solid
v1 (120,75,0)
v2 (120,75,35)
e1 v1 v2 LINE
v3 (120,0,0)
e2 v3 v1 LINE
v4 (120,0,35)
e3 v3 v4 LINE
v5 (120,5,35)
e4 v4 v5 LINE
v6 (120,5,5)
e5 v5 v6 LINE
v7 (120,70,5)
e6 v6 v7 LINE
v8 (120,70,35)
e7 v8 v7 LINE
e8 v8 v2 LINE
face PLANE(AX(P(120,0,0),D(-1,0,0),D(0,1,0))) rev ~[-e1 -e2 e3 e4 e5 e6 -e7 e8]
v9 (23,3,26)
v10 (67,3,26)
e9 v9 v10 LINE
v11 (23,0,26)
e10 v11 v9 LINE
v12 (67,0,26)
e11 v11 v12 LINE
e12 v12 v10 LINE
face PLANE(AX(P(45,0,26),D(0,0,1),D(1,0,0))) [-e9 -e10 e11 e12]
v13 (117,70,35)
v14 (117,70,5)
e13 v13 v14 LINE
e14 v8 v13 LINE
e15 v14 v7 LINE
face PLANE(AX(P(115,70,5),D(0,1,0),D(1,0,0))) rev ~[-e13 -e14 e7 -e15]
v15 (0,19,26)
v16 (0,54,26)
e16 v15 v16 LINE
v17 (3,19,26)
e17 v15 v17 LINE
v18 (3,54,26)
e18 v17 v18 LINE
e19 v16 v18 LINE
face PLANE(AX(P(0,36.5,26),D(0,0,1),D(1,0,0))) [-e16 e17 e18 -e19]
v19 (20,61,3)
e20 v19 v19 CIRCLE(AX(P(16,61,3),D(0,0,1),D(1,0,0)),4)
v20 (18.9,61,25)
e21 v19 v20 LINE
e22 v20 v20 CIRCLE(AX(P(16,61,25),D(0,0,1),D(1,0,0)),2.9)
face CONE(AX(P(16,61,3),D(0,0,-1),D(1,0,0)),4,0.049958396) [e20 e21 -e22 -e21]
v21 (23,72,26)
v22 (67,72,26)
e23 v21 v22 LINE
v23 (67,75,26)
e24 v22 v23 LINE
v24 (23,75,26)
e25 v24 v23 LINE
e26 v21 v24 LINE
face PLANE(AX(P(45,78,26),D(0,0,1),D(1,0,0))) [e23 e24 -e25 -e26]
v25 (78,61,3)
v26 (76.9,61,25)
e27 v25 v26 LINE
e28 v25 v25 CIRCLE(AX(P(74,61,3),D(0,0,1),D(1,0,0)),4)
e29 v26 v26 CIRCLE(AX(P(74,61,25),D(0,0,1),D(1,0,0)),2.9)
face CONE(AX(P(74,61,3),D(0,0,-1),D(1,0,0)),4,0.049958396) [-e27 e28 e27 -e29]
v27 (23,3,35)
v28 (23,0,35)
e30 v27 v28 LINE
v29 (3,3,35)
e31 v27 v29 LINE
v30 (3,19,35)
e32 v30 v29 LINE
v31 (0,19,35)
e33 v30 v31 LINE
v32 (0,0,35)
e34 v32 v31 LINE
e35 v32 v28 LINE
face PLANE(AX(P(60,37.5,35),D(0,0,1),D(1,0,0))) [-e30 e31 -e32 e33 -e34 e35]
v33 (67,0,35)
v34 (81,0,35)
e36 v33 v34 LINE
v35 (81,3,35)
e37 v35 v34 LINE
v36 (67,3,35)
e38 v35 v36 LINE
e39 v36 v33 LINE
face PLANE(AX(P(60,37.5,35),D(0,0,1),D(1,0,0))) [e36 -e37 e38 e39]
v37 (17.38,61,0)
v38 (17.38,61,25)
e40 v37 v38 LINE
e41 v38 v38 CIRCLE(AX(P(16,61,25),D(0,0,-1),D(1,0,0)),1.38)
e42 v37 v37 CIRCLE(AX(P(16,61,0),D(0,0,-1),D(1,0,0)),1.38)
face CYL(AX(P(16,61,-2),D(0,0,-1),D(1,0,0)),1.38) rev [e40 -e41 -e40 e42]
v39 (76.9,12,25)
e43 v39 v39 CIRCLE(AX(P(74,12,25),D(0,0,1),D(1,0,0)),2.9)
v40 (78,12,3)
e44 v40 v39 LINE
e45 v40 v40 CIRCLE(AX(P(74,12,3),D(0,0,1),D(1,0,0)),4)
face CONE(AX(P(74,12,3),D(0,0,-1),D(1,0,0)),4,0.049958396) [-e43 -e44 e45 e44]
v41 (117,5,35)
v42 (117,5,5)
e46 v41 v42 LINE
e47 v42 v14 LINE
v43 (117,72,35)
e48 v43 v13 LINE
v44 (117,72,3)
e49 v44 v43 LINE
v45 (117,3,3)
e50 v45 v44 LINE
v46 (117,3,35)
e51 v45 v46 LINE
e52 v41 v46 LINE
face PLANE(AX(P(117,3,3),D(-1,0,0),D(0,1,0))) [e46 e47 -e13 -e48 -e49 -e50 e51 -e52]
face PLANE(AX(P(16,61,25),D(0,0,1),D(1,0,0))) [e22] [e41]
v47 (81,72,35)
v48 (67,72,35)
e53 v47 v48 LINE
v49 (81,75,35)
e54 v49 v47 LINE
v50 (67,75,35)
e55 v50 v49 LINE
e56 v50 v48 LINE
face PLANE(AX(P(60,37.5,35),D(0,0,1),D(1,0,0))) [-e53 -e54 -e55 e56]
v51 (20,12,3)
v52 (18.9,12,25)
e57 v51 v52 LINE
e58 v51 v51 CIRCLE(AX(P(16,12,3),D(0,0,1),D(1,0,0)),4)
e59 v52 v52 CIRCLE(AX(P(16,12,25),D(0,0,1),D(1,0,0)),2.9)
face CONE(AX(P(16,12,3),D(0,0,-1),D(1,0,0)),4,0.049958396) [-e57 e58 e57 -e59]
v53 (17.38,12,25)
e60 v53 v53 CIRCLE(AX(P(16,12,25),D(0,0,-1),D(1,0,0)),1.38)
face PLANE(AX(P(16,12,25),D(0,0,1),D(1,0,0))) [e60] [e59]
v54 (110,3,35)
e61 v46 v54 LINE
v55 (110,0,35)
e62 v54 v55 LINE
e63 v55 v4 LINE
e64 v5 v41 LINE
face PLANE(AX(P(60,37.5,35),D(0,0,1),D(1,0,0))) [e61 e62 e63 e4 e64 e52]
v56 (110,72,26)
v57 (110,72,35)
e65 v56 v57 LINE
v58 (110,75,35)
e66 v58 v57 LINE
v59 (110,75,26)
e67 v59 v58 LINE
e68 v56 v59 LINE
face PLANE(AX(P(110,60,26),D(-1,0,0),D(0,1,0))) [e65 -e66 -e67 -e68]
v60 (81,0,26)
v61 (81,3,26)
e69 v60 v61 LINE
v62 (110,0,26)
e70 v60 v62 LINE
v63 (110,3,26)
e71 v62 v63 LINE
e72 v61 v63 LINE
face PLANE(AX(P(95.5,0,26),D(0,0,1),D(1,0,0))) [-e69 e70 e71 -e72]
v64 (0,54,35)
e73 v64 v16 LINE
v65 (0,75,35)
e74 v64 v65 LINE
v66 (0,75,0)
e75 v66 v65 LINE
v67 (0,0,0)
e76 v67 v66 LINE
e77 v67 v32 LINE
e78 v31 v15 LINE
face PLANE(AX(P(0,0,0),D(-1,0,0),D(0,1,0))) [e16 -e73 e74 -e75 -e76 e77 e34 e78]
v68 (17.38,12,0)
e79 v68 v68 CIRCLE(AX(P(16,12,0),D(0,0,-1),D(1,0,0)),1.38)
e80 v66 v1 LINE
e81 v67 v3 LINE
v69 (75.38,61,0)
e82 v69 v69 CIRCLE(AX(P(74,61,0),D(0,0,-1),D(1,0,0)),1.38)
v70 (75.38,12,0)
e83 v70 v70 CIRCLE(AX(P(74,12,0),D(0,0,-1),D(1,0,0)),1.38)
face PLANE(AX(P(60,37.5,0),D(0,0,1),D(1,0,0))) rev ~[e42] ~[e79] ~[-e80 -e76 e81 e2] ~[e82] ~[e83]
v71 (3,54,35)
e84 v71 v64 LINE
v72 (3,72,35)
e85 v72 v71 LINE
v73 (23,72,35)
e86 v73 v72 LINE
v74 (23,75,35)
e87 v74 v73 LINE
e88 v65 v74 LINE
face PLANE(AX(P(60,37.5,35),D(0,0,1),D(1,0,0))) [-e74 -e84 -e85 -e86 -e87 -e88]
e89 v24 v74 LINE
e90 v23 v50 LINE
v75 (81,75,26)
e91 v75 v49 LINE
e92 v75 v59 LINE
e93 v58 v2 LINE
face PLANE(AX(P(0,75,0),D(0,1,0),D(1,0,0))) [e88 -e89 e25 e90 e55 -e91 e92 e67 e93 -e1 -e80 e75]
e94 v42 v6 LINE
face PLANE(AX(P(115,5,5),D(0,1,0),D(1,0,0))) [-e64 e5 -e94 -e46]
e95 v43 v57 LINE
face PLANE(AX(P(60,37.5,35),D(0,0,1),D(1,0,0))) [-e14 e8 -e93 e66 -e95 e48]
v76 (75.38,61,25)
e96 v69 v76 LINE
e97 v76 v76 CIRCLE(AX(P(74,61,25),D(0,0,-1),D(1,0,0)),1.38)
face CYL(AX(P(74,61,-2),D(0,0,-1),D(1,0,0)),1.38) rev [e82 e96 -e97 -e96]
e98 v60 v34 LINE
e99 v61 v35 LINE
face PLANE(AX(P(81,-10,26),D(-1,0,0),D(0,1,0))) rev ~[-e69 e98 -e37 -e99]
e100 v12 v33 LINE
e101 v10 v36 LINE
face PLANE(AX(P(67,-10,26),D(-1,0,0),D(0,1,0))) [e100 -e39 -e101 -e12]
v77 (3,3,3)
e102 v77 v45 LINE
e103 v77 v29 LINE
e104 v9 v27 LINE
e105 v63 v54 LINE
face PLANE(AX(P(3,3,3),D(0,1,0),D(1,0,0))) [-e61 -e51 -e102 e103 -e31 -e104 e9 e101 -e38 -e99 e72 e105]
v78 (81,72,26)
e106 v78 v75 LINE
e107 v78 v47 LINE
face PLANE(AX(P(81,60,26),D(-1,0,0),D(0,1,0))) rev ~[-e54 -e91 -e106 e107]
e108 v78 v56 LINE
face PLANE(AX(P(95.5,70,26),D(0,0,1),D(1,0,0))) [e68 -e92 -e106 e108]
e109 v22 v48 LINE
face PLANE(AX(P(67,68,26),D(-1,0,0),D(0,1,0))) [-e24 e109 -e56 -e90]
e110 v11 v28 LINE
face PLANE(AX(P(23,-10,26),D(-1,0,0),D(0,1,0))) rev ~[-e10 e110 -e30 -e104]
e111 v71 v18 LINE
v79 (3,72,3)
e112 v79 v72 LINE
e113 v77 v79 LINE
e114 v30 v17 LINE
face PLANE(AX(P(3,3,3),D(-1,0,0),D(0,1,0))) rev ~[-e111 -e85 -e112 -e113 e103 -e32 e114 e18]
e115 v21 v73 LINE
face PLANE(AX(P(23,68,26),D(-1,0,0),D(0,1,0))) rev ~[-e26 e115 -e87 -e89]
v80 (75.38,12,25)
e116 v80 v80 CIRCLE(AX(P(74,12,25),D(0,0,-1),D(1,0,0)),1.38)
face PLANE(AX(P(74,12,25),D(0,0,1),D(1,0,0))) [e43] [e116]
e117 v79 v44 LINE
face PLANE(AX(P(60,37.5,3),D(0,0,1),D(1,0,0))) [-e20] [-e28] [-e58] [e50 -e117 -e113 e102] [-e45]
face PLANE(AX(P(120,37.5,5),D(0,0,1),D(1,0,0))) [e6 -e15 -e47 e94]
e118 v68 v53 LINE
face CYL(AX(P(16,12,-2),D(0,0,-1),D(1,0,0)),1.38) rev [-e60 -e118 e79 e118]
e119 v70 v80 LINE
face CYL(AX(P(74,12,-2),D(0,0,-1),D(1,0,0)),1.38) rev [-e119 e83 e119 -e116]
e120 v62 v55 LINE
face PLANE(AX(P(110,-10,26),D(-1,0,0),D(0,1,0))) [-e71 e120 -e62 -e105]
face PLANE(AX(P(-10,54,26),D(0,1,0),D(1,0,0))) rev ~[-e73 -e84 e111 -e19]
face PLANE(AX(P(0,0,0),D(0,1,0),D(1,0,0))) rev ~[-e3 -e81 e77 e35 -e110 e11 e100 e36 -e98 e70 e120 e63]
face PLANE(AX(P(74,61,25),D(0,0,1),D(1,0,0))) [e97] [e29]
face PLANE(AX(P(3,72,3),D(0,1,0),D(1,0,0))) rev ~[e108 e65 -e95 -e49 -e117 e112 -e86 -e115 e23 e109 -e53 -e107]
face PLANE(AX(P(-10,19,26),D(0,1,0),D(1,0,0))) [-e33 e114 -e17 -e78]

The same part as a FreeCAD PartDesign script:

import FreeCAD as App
import Part
import Sketcher
Q = App.Units.Quantity


def add_polygon(sketch, points):
    """Adds a closed chain of lines whose ends are joined by coincident constraints."""
    first, n = sketch.GeometryCount, len(points)
    for a, b in zip(points, points[1:] + points[:1]):
        sketch.addGeometry(Part.LineSegment(App.Vector(*a, 0), App.Vector(*b, 0)), False)
    for i in range(n):
        sketch.addConstraint(Sketcher.Constraint("Coincident", first + i, 2, first + (i + 1) % n, 1))

doc = App.newDocument("Part")
params = doc.addObject("Spreadsheet::Sheet", "Params")
for row, (alias, value) in enumerate([
    ("sketch1_diameter", "2.76 mm"),
    ("pad1_length", "30 mm"),
    ("sketch2_diameter", "2.76 mm"),
    ("pad2_length", "30 mm"),
    ("sketch3_diameter", "2.76 mm"),
    ("pad3_length", "30 mm"),
    ("sketch4_diameter", "2.76 mm"),
    ("pad4_length", "30 mm"),
    ("sketch5_width", "4 mm"),
    ("sketch5_height", "22 mm"),
    ("sketch5_width2", "2.9 mm"),
    ("revolution_angle", "360 deg"),
    ("sketch6_width", "4 mm"),
    ("sketch6_height", "22 mm"),
    ("sketch6_width2", "2.9 mm"),
    ("revolution2_angle", "360 deg"),
    ("sketch7_width", "4 mm"),
    ("sketch7_height", "22 mm"),
    ("sketch7_width2", "2.9 mm"),
    ("revolution3_angle", "360 deg"),
    ("sketch8_width", "4 mm"),
    ("sketch8_height", "22 mm"),
    ("sketch8_width2", "2.9 mm"),
    ("revolution4_angle", "360 deg"),
    ("sketch9_width", "10 mm"),
    ("sketch9_height", "65 mm"),
    ("pad5_length", "35 mm"),
    ("sketch10_width", "20 mm"),
    ("sketch10_height", "35 mm"),
    ("pad6_length", "10 mm"),
    ("sketch11_width", "29 mm"),
    ("sketch11_height", "20 mm"),
    ("pad7_length", "10 mm"),
    ("sketch12_width", "29 mm"),
    ("sketch12_height", "20 mm"),
    ("pad8_length", "10 mm"),
    ("sketch13_width", "44 mm"),
    ("sketch13_height", "20 mm"),
    ("pad9_length", "10 mm"),
    ("sketch14_width", "44 mm"),
    ("sketch14_height", "20 mm"),
    ("pad10_length", "10 mm"),
    ("sketch15_width", "114 mm"),
    ("sketch15_height", "69 mm"),
    ("pad11_length", "35 mm"),
    ("sketch16_width", "120 mm"),
    ("sketch16_height", "75 mm"),
    ("pad12_length", "35 mm"),
], start=1):
    params.set(f"A{row}", alias)
    params.set(f"B{row}", "=" + value)
    params.setAlias(f"B{row}", alias)

body = doc.addObject("PartDesign::Body", "Body")

# Sketch on XY plane
sketch1 = body.newObject("Sketcher::SketchObject", "Sketch")
sketch1.AttachmentSupport = (doc.getObject("XY_Plane"), [""])
sketch1.MapMode = "FlatFace"
sketch1.AttachmentOffset = App.Placement(App.Vector(0, 0, -2), App.Rotation())
sketch1.addGeometry(Part.Circle(App.Vector(74, 61, 0), App.Vector(0, 0, 1), 1.4), False)
sketch1.addConstraint(Sketcher.Constraint("Diameter", 0, Q("2.76 mm")))
sketch1.addConstraint(Sketcher.Constraint("DistanceX", -1, 1, 0, 3, Q("74 mm")))
sketch1.addConstraint(Sketcher.Constraint("DistanceY", -1, 1, 0, 3, Q("61 mm")))
sketch1.setExpression("Constraints[0]", "Params.sketch1_diameter")
pad1 = body.newObject("PartDesign::Pad", "Pad")
pad1.Profile = sketch1
pad1.setExpression("Length", "Params.pad1_length")
body2 = doc.addObject("PartDesign::Body", "Body001")

# Sketch on XY plane
sketch2 = body2.newObject("Sketcher::SketchObject", "Sketch001")
sketch2.AttachmentSupport = (doc.getObject("XY_Plane001"), [""])
sketch2.MapMode = "FlatFace"
sketch2.AttachmentOffset = App.Placement(App.Vector(0, 0, -2), App.Rotation())
sketch2.addGeometry(Part.Circle(App.Vector(16, 61, 0), App.Vector(0, 0, 1), 1.4), False)
sketch2.addConstraint(Sketcher.Constraint("Diameter", 0, Q("2.76 mm")))
sketch2.addConstraint(Sketcher.Constraint("DistanceX", -1, 1, 0, 3, Q("16 mm")))
sketch2.addConstraint(Sketcher.Constraint("DistanceY", -1, 1, 0, 3, Q("61 mm")))
sketch2.setExpression("Constraints[0]", "Params.sketch2_diameter")
pad2 = body2.newObject("PartDesign::Pad", "Pad001")
pad2.Profile = sketch2
pad2.setExpression("Length", "Params.pad2_length")
body3 = doc.addObject("PartDesign::Body", "Body002")

# Sketch on XY plane
sketch3 = body3.newObject("Sketcher::SketchObject", "Sketch002")
sketch3.AttachmentSupport = (doc.getObject("XY_Plane002"), [""])
sketch3.MapMode = "FlatFace"
sketch3.AttachmentOffset = App.Placement(App.Vector(0, 0, -2), App.Rotation())
sketch3.addGeometry(Part.Circle(App.Vector(16, 12, 0), App.Vector(0, 0, 1), 1.4), False)
sketch3.addConstraint(Sketcher.Constraint("Diameter", 0, Q("2.76 mm")))
sketch3.addConstraint(Sketcher.Constraint("DistanceX", -1, 1, 0, 3, Q("16 mm")))
sketch3.addConstraint(Sketcher.Constraint("DistanceY", -1, 1, 0, 3, Q("12 mm")))
sketch3.setExpression("Constraints[0]", "Params.sketch3_diameter")
pad3 = body3.newObject("PartDesign::Pad", "Pad002")
pad3.Profile = sketch3
pad3.setExpression("Length", "Params.pad3_length")
body4 = doc.addObject("PartDesign::Body", "Body003")
body4.AllowCompound = True

# Sketch on XY plane
sketch4 = body4.newObject("Sketcher::SketchObject", "Sketch003")
sketch4.AttachmentSupport = (doc.getObject("XY_Plane003"), [""])
sketch4.MapMode = "FlatFace"
sketch4.AttachmentOffset = App.Placement(App.Vector(0, 0, -2), App.Rotation())
sketch4.addGeometry(Part.Circle(App.Vector(74, 12, 0), App.Vector(0, 0, 1), 1.4), False)
sketch4.addConstraint(Sketcher.Constraint("Diameter", 0, Q("2.76 mm")))
sketch4.addConstraint(Sketcher.Constraint("DistanceX", -1, 1, 0, 3, Q("74 mm")))
sketch4.addConstraint(Sketcher.Constraint("DistanceY", -1, 1, 0, 3, Q("12 mm")))
sketch4.setExpression("Constraints[0]", "Params.sketch4_diameter")
pad4 = body4.newObject("PartDesign::Pad", "Pad003")
pad4.Profile = sketch4
pad4.setExpression("Length", "Params.pad4_length")
doc.recompute()

boolean = body4.newObject("PartDesign::Boolean", "Boolean")
boolean.Type = "Fuse"
boolean.addObjects([body])
doc.recompute()

boolean2 = body4.newObject("PartDesign::Boolean", "Boolean001")
boolean2.Type = "Fuse"
boolean2.addObjects([body2])
doc.recompute()

boolean3 = body4.newObject("PartDesign::Boolean", "Boolean002")
boolean3.Type = "Fuse"
boolean3.addObjects([body3])
body5 = doc.addObject("PartDesign::Body", "Body004")

# Sketch on XZ plane
sketch5 = body5.newObject("Sketcher::SketchObject", "Sketch004")
sketch5.AttachmentSupport = (doc.getObject("XZ_Plane004"), [""])
sketch5.MapMode = "FlatFace"
sketch5.AttachmentOffset = App.Placement(App.Vector(0, 0, -61), App.Rotation())
add_polygon(sketch5, [(16, 3), (20, 3), (18.9, 25), (16, 25)])  # lines 0-3
sketch5.addGeometry(Part.LineSegment(App.Vector(16, 3, 0), App.Vector(16, 25, 0)), True)  # axis
sketch5.addConstraint(Sketcher.Constraint("Horizontal", 0))
sketch5.addConstraint(Sketcher.Constraint("Horizontal", 2))
sketch5.addConstraint(Sketcher.Constraint("Vertical", 3))
sketch5.addConstraint(Sketcher.Constraint("Vertical", 4))
sketch5.addConstraint(Sketcher.Constraint("Coincident", 4, 1, 3, 2))
sketch5.addConstraint(Sketcher.Constraint("Horizontal", 1, 2, 4, 2))
sketch5.addConstraint(Sketcher.Constraint("DistanceX", 0, 1, 0, 2, Q("4 mm")))
sketch5.addConstraint(Sketcher.Constraint("DistanceY", 3, 2, 3, 1, Q("22 mm")))
sketch5.addConstraint(Sketcher.Constraint("DistanceX", 2, 2, 2, 1, Q("2.9 mm")))
sketch5.addConstraint(Sketcher.Constraint("DistanceX", -1, 1, 0, 2, Q("20 mm")))
sketch5.addConstraint(Sketcher.Constraint("DistanceY", -1, 1, 0, 2, Q("3 mm")))
sketch5.setExpression("Constraints[10]", "Params.sketch5_width")
sketch5.setExpression("Constraints[11]", "Params.sketch5_height")
sketch5.setExpression("Constraints[12]", "Params.sketch5_width2")
revolution = body5.newObject("PartDesign::Revolution", "Revolution")
revolution.Profile = sketch5
revolution.ReferenceAxis = (sketch5, ["Axis0"])
revolution.setExpression("Angle", "Params.revolution_angle")
body6 = doc.addObject("PartDesign::Body", "Body005")

# Sketch on XZ plane
sketch6 = body6.newObject("Sketcher::SketchObject", "Sketch005")
sketch6.AttachmentSupport = (doc.getObject("XZ_Plane005"), [""])
sketch6.MapMode = "FlatFace"
sketch6.AttachmentOffset = App.Placement(App.Vector(0, 0, -12), App.Rotation())
add_polygon(sketch6, [(16, 3), (20, 3), (18.9, 25), (16, 25)])  # lines 0-3
sketch6.addGeometry(Part.LineSegment(App.Vector(16, 3, 0), App.Vector(16, 25, 0)), True)  # axis
sketch6.addConstraint(Sketcher.Constraint("Horizontal", 0))
sketch6.addConstraint(Sketcher.Constraint("Horizontal", 2))
sketch6.addConstraint(Sketcher.Constraint("Vertical", 3))
sketch6.addConstraint(Sketcher.Constraint("Vertical", 4))
sketch6.addConstraint(Sketcher.Constraint("Coincident", 4, 1, 3, 2))
sketch6.addConstraint(Sketcher.Constraint("Horizontal", 1, 2, 4, 2))
sketch6.addConstraint(Sketcher.Constraint("DistanceX", 0, 1, 0, 2, Q("4 mm")))
sketch6.addConstraint(Sketcher.Constraint("DistanceY", 3, 2, 3, 1, Q("22 mm")))
sketch6.addConstraint(Sketcher.Constraint("DistanceX", 2, 2, 2, 1, Q("2.9 mm")))
sketch6.addConstraint(Sketcher.Constraint("DistanceX", -1, 1, 0, 2, Q("20 mm")))
sketch6.addConstraint(Sketcher.Constraint("DistanceY", -1, 1, 0, 2, Q("3 mm")))
sketch6.setExpression("Constraints[10]", "Params.sketch6_width")
sketch6.setExpression("Constraints[11]", "Params.sketch6_height")
sketch6.setExpression("Constraints[12]", "Params.sketch6_width2")
revolution2 = body6.newObject("PartDesign::Revolution", "Revolution001")
revolution2.Profile = sketch6
revolution2.ReferenceAxis = (sketch6, ["Axis0"])
revolution2.setExpression("Angle", "Params.revolution2_angle")
body7 = doc.addObject("PartDesign::Body", "Body006")

# Sketch on XZ plane
sketch7 = body7.newObject("Sketcher::SketchObject", "Sketch006")
sketch7.AttachmentSupport = (doc.getObject("XZ_Plane006"), [""])
sketch7.MapMode = "FlatFace"
sketch7.AttachmentOffset = App.Placement(App.Vector(0, 0, -61), App.Rotation())
add_polygon(sketch7, [(74, 3), (78, 3), (76.9, 25), (74, 25)])  # lines 0-3
sketch7.addGeometry(Part.LineSegment(App.Vector(74, 3, 0), App.Vector(74, 25, 0)), True)  # axis
sketch7.addConstraint(Sketcher.Constraint("Horizontal", 0))
sketch7.addConstraint(Sketcher.Constraint("Horizontal", 2))
sketch7.addConstraint(Sketcher.Constraint("Vertical", 3))
sketch7.addConstraint(Sketcher.Constraint("Vertical", 4))
sketch7.addConstraint(Sketcher.Constraint("Coincident", 4, 1, 3, 2))
sketch7.addConstraint(Sketcher.Constraint("Horizontal", 1, 2, 4, 2))
sketch7.addConstraint(Sketcher.Constraint("DistanceX", 0, 1, 0, 2, Q("4 mm")))
sketch7.addConstraint(Sketcher.Constraint("DistanceY", 3, 2, 3, 1, Q("22 mm")))
sketch7.addConstraint(Sketcher.Constraint("DistanceX", 2, 2, 2, 1, Q("2.9 mm")))
sketch7.addConstraint(Sketcher.Constraint("DistanceX", -1, 1, 0, 2, Q("78 mm")))
sketch7.addConstraint(Sketcher.Constraint("DistanceY", -1, 1, 0, 2, Q("3 mm")))
sketch7.setExpression("Constraints[10]", "Params.sketch7_width")
sketch7.setExpression("Constraints[11]", "Params.sketch7_height")
sketch7.setExpression("Constraints[12]", "Params.sketch7_width2")
revolution3 = body7.newObject("PartDesign::Revolution", "Revolution002")
revolution3.Profile = sketch7
revolution3.ReferenceAxis = (sketch7, ["Axis0"])
revolution3.setExpression("Angle", "Params.revolution3_angle")
body8 = doc.addObject("PartDesign::Body", "Body007")
body8.AllowCompound = True

# Sketch on XZ plane
sketch8 = body8.newObject("Sketcher::SketchObject", "Sketch007")
sketch8.AttachmentSupport = (doc.getObject("XZ_Plane007"), [""])
sketch8.MapMode = "FlatFace"
sketch8.AttachmentOffset = App.Placement(App.Vector(0, 0, -12), App.Rotation())
add_polygon(sketch8, [(74, 3), (78, 3), (76.9, 25), (74, 25)])  # lines 0-3
sketch8.addGeometry(Part.LineSegment(App.Vector(74, 3, 0), App.Vector(74, 25, 0)), True)  # axis
sketch8.addConstraint(Sketcher.Constraint("Horizontal", 0))
sketch8.addConstraint(Sketcher.Constraint("Horizontal", 2))
sketch8.addConstraint(Sketcher.Constraint("Vertical", 3))
sketch8.addConstraint(Sketcher.Constraint("Vertical", 4))
sketch8.addConstraint(Sketcher.Constraint("Coincident", 4, 1, 3, 2))
sketch8.addConstraint(Sketcher.Constraint("Horizontal", 1, 2, 4, 2))
sketch8.addConstraint(Sketcher.Constraint("DistanceX", 0, 1, 0, 2, Q("4 mm")))
sketch8.addConstraint(Sketcher.Constraint("DistanceY", 3, 2, 3, 1, Q("22 mm")))
sketch8.addConstraint(Sketcher.Constraint("DistanceX", 2, 2, 2, 1, Q("2.9 mm")))
sketch8.addConstraint(Sketcher.Constraint("DistanceX", -1, 1, 0, 2, Q("78 mm")))
sketch8.addConstraint(Sketcher.Constraint("DistanceY", -1, 1, 0, 2, Q("3 mm")))
sketch8.setExpression("Constraints[10]", "Params.sketch8_width")
sketch8.setExpression("Constraints[11]", "Params.sketch8_height")
sketch8.setExpression("Constraints[12]", "Params.sketch8_width2")
revolution4 = body8.newObject("PartDesign::Revolution", "Revolution003")
revolution4.Profile = sketch8
revolution4.ReferenceAxis = (sketch8, ["Axis0"])
revolution4.setExpression("Angle", "Params.revolution4_angle")
doc.recompute()

boolean4 = body8.newObject("PartDesign::Boolean", "Boolean003")
boolean4.Type = "Fuse"
boolean4.addObjects([body5])
doc.recompute()

boolean5 = body8.newObject("PartDesign::Boolean", "Boolean004")
boolean5.Type = "Fuse"
boolean5.addObjects([body6])
doc.recompute()

boolean6 = body8.newObject("PartDesign::Boolean", "Boolean005")
boolean6.Type = "Fuse"
boolean6.addObjects([body7])
body9 = doc.addObject("PartDesign::Body", "Body008")

# Sketch on XY plane
sketch9 = body9.newObject("Sketcher::SketchObject", "Sketch008")
sketch9.AttachmentSupport = (doc.getObject("XY_Plane008"), [""])
sketch9.MapMode = "FlatFace"
sketch9.AttachmentOffset = App.Placement(App.Vector(0, 0, 5), App.Rotation())
add_polygon(sketch9, [(115, 70), (115, 5), (125, 5), (125, 70)])  # lines 0-3
sketch9.addConstraint(Sketcher.Constraint("Vertical", 0))
sketch9.addConstraint(Sketcher.Constraint("Horizontal", 1))
sketch9.addConstraint(Sketcher.Constraint("Vertical", 2))
sketch9.addConstraint(Sketcher.Constraint("Horizontal", 3))
sketch9.addConstraint(Sketcher.Constraint("DistanceX", 1, 1, 1, 2, Q("10 mm")))
sketch9.addConstraint(Sketcher.Constraint("DistanceY", 0, 2, 0, 1, Q("65 mm")))
sketch9.addConstraint(Sketcher.Constraint("DistanceX", -1, 1, 0, 2, Q("115 mm")))
sketch9.addConstraint(Sketcher.Constraint("DistanceY", -1, 1, 0, 2, Q("5 mm")))
sketch9.setExpression("Constraints[8]", "Params.sketch9_width")
sketch9.setExpression("Constraints[9]", "Params.sketch9_height")
pad5 = body9.newObject("PartDesign::Pad", "Pad004")
pad5.Profile = sketch9
pad5.setExpression("Length", "Params.pad5_length")
body10 = doc.addObject("PartDesign::Body", "Body009")

# Sketch on XY plane
sketch10 = body10.newObject("Sketcher::SketchObject", "Sketch009")
sketch10.AttachmentSupport = (doc.getObject("XY_Plane009"), [""])
sketch10.MapMode = "FlatFace"
sketch10.AttachmentOffset = App.Placement(App.Vector(0, 0, 26), App.Rotation())
add_polygon(sketch10, [(-10, 54), (-10, 19), (10, 19), (10, 54)])  # lines 0-3
sketch10.addConstraint(Sketcher.Constraint("Vertical", 0))
sketch10.addConstraint(Sketcher.Constraint("Horizontal", 1))
sketch10.addConstraint(Sketcher.Constraint("Vertical", 2))
sketch10.addConstraint(Sketcher.Constraint("Horizontal", 3))
sketch10.addConstraint(Sketcher.Constraint("DistanceX", 1, 1, 1, 2, Q("20 mm")))
sketch10.addConstraint(Sketcher.Constraint("DistanceY", 0, 2, 0, 1, Q("35 mm")))
sketch10.addConstraint(Sketcher.Constraint("DistanceX", 0, 2, -1, 1, Q("10 mm")))
sketch10.addConstraint(Sketcher.Constraint("DistanceY", -1, 1, 0, 2, Q("19 mm")))
sketch10.setExpression("Constraints[8]", "Params.sketch10_width")
sketch10.setExpression("Constraints[9]", "Params.sketch10_height")
pad6 = body10.newObject("PartDesign::Pad", "Pad005")
pad6.Profile = sketch10
pad6.setExpression("Length", "Params.pad6_length")
body11 = doc.addObject("PartDesign::Body", "Body010")

# Sketch on XY plane
sketch11 = body11.newObject("Sketcher::SketchObject", "Sketch010")
sketch11.AttachmentSupport = (doc.getObject("XY_Plane010"), [""])
sketch11.MapMode = "FlatFace"
sketch11.AttachmentOffset = App.Placement(App.Vector(0, 0, 26), App.Rotation())
add_polygon(sketch11, [(81, 80), (81, 60), (110, 60), (110, 80)])  # lines 0-3
sketch11.addConstraint(Sketcher.Constraint("Vertical", 0))
sketch11.addConstraint(Sketcher.Constraint("Horizontal", 1))
sketch11.addConstraint(Sketcher.Constraint("Vertical", 2))
sketch11.addConstraint(Sketcher.Constraint("Horizontal", 3))
sketch11.addConstraint(Sketcher.Constraint("DistanceX", 1, 1, 1, 2, Q("29 mm")))
sketch11.addConstraint(Sketcher.Constraint("DistanceY", 0, 2, 0, 1, Q("20 mm")))
sketch11.addConstraint(Sketcher.Constraint("DistanceX", -1, 1, 0, 2, Q("81 mm")))
sketch11.addConstraint(Sketcher.Constraint("DistanceY", -1, 1, 0, 2, Q("60 mm")))
sketch11.setExpression("Constraints[8]", "Params.sketch11_width")
sketch11.setExpression("Constraints[9]", "Params.sketch11_height")
pad7 = body11.newObject("PartDesign::Pad", "Pad006")
pad7.Profile = sketch11
pad7.setExpression("Length", "Params.pad7_length")
body12 = doc.addObject("PartDesign::Body", "Body011")

# Sketch on XY plane
sketch12 = body12.newObject("Sketcher::SketchObject", "Sketch011")
sketch12.AttachmentSupport = (doc.getObject("XY_Plane011"), [""])
sketch12.MapMode = "FlatFace"
sketch12.AttachmentOffset = App.Placement(App.Vector(0, 0, 26), App.Rotation())
add_polygon(sketch12, [(81, 10), (81, -10), (110, -10), (110, 10)])  # lines 0-3
sketch12.addConstraint(Sketcher.Constraint("Vertical", 0))
sketch12.addConstraint(Sketcher.Constraint("Horizontal", 1))
sketch12.addConstraint(Sketcher.Constraint("Vertical", 2))
sketch12.addConstraint(Sketcher.Constraint("Horizontal", 3))
sketch12.addConstraint(Sketcher.Constraint("DistanceX", 1, 1, 1, 2, Q("29 mm")))
sketch12.addConstraint(Sketcher.Constraint("DistanceY", 0, 2, 0, 1, Q("20 mm")))
sketch12.addConstraint(Sketcher.Constraint("DistanceX", -1, 1, 0, 2, Q("81 mm")))
sketch12.addConstraint(Sketcher.Constraint("DistanceY", 0, 2, -1, 1, Q("10 mm")))
sketch12.setExpression("Constraints[8]", "Params.sketch12_width")
sketch12.setExpression("Constraints[9]", "Params.sketch12_height")
pad8 = body12.newObject("PartDesign::Pad", "Pad007")
pad8.Profile = sketch12
pad8.setExpression("Length", "Params.pad8_length")
body13 = doc.addObject("PartDesign::Body", "Body012")

# Sketch on XY plane
sketch13 = body13.newObject("Sketcher::SketchObject", "Sketch012")
sketch13.AttachmentSupport = (doc.getObject("XY_Plane012"), [""])
sketch13.MapMode = "FlatFace"
sketch13.AttachmentOffset = App.Placement(App.Vector(0, 0, 26), App.Rotation())
add_polygon(sketch13, [(23, 88), (23, 68), (67, 68), (67, 88)])  # lines 0-3
sketch13.addConstraint(Sketcher.Constraint("Vertical", 0))
sketch13.addConstraint(Sketcher.Constraint("Horizontal", 1))
sketch13.addConstraint(Sketcher.Constraint("Vertical", 2))
sketch13.addConstraint(Sketcher.Constraint("Horizontal", 3))
sketch13.addConstraint(Sketcher.Constraint("DistanceX", 1, 1, 1, 2, Q("44 mm")))
sketch13.addConstraint(Sketcher.Constraint("DistanceY", 0, 2, 0, 1, Q("20 mm")))
sketch13.addConstraint(Sketcher.Constraint("DistanceX", -1, 1, 0, 2, Q("23 mm")))
sketch13.addConstraint(Sketcher.Constraint("DistanceY", -1, 1, 0, 2, Q("68 mm")))
sketch13.setExpression("Constraints[8]", "Params.sketch13_width")
sketch13.setExpression("Constraints[9]", "Params.sketch13_height")
pad9 = body13.newObject("PartDesign::Pad", "Pad008")
pad9.Profile = sketch13
pad9.setExpression("Length", "Params.pad9_length")
body14 = doc.addObject("PartDesign::Body", "Body013")
body14.AllowCompound = True

# Sketch on XY plane
sketch14 = body14.newObject("Sketcher::SketchObject", "Sketch013")
sketch14.AttachmentSupport = (doc.getObject("XY_Plane013"), [""])
sketch14.MapMode = "FlatFace"
sketch14.AttachmentOffset = App.Placement(App.Vector(0, 0, 26), App.Rotation())
add_polygon(sketch14, [(23, 10), (23, -10), (67, -10), (67, 10)])  # lines 0-3
sketch14.addConstraint(Sketcher.Constraint("Vertical", 0))
sketch14.addConstraint(Sketcher.Constraint("Horizontal", 1))
sketch14.addConstraint(Sketcher.Constraint("Vertical", 2))
sketch14.addConstraint(Sketcher.Constraint("Horizontal", 3))
sketch14.addConstraint(Sketcher.Constraint("DistanceX", 1, 1, 1, 2, Q("44 mm")))
sketch14.addConstraint(Sketcher.Constraint("DistanceY", 0, 2, 0, 1, Q("20 mm")))
sketch14.addConstraint(Sketcher.Constraint("DistanceX", -1, 1, 0, 2, Q("23 mm")))
sketch14.addConstraint(Sketcher.Constraint("DistanceY", 0, 2, -1, 1, Q("10 mm")))
sketch14.setExpression("Constraints[8]", "Params.sketch14_width")
sketch14.setExpression("Constraints[9]", "Params.sketch14_height")
pad10 = body14.newObject("PartDesign::Pad", "Pad009")
pad10.Profile = sketch14
pad10.setExpression("Length", "Params.pad10_length")
doc.recompute()

boolean7 = body14.newObject("PartDesign::Boolean", "Boolean006")
boolean7.Type = "Fuse"
boolean7.addObjects([body10])
doc.recompute()

boolean8 = body14.newObject("PartDesign::Boolean", "Boolean007")
boolean8.Type = "Fuse"
boolean8.addObjects([body11])
doc.recompute()

boolean9 = body14.newObject("PartDesign::Boolean", "Boolean008")
boolean9.Type = "Fuse"
boolean9.addObjects([body12])
doc.recompute()

boolean10 = body14.newObject("PartDesign::Boolean", "Boolean009")
boolean10.Type = "Fuse"
boolean10.addObjects([body13])
doc.recompute()

boolean11 = body14.newObject("PartDesign::Boolean", "Boolean010")
boolean11.Type = "Fuse"
boolean11.addObjects([body9])
body15 = doc.addObject("PartDesign::Body", "Body014")

# Sketch on XY plane
sketch15 = body15.newObject("Sketcher::SketchObject", "Sketch014")
sketch15.AttachmentSupport = (doc.getObject("XY_Plane014"), [""])
sketch15.MapMode = "FlatFace"
sketch15.AttachmentOffset = App.Placement(App.Vector(0, 0, 3), App.Rotation())
add_polygon(sketch15, [(3, 72), (3, 3), (117, 3), (117, 72)])  # lines 0-3
sketch15.addConstraint(Sketcher.Constraint("Vertical", 0))
sketch15.addConstraint(Sketcher.Constraint("Horizontal", 1))
sketch15.addConstraint(Sketcher.Constraint("Vertical", 2))
sketch15.addConstraint(Sketcher.Constraint("Horizontal", 3))
sketch15.addConstraint(Sketcher.Constraint("DistanceX", 1, 1, 1, 2, Q("114 mm")))
sketch15.addConstraint(Sketcher.Constraint("DistanceY", 0, 2, 0, 1, Q("69 mm")))
sketch15.addConstraint(Sketcher.Constraint("DistanceX", -1, 1, 0, 2, Q("3 mm")))
sketch15.addConstraint(Sketcher.Constraint("DistanceY", -1, 1, 0, 2, Q("3 mm")))
sketch15.setExpression("Constraints[8]", "Params.sketch15_width")
sketch15.setExpression("Constraints[9]", "Params.sketch15_height")
pad11 = body15.newObject("PartDesign::Pad", "Pad010")
pad11.Profile = sketch15
pad11.setExpression("Length", "Params.pad11_length")
body16 = doc.addObject("PartDesign::Body", "Body015")

# Sketch on XY plane
sketch16 = body16.newObject("Sketcher::SketchObject", "Sketch015")
sketch16.AttachmentSupport = (doc.getObject("XY_Plane015"), [""])
sketch16.MapMode = "FlatFace"
add_polygon(sketch16, [(0, 75), (0, 0), (120, 0), (120, 75)])  # lines 0-3
sketch16.addConstraint(Sketcher.Constraint("Vertical", 0))
sketch16.addConstraint(Sketcher.Constraint("Horizontal", 1))
sketch16.addConstraint(Sketcher.Constraint("Vertical", 2))
sketch16.addConstraint(Sketcher.Constraint("Horizontal", 3))
sketch16.addConstraint(Sketcher.Constraint("Coincident", 0, 2, -1, 1))
sketch16.addConstraint(Sketcher.Constraint("DistanceX", 1, 1, 1, 2, Q("120 mm")))
sketch16.addConstraint(Sketcher.Constraint("DistanceY", 0, 2, 0, 1, Q("75 mm")))
sketch16.setExpression("Constraints[9]", "Params.sketch16_width")
sketch16.setExpression("Constraints[10]", "Params.sketch16_height")
pad12 = body16.newObject("PartDesign::Pad", "Pad011")
pad12.Profile = sketch16
pad12.setExpression("Length", "Params.pad12_length")
doc.recompute()

boolean12 = body16.newObject("PartDesign::Boolean", "Boolean011")
boolean12.Type = "Cut"
boolean12.addObjects([body15])
doc.recompute()

boolean13 = body16.newObject("PartDesign::Boolean", "Boolean012")
boolean13.Type = "Cut"
boolean13.addObjects([body14])
doc.recompute()

boolean14 = body16.newObject("PartDesign::Boolean", "Boolean013")
boolean14.Type = "Fuse"
boolean14.addObjects([body8])
doc.recompute()

boolean15 = body16.newObject("PartDesign::Boolean", "Boolean014")
boolean15.Type = "Cut"
boolean15.addObjects([body4])

doc.recompute()
